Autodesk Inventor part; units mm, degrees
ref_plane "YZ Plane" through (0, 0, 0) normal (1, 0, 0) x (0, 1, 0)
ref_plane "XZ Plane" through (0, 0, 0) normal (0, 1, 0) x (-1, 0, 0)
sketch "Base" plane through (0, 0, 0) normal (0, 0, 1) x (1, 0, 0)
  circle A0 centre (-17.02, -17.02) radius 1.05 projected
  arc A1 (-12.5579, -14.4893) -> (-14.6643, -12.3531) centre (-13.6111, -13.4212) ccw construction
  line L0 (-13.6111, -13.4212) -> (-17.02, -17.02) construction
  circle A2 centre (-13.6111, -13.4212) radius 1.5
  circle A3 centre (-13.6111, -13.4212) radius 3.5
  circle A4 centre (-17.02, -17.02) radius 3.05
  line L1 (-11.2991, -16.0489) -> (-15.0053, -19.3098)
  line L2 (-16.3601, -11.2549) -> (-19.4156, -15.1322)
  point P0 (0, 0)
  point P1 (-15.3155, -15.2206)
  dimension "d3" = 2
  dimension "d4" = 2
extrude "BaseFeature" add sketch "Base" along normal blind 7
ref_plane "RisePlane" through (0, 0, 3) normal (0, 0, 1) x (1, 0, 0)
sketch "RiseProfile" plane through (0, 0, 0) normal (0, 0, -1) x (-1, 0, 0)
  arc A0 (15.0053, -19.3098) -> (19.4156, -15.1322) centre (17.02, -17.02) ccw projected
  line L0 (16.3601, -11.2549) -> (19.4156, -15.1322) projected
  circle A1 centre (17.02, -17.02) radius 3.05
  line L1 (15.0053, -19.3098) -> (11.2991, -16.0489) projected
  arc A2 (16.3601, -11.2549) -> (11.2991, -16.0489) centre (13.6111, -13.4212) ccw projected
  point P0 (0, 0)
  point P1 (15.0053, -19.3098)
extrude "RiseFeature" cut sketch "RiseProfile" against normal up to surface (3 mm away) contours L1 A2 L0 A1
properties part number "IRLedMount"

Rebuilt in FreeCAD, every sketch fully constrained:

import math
import FreeCAD as App
import Part
import Sketcher
from FreeCAD import Vector
Q = App.Units.Quantity

doc = App.newDocument("Part")
body = doc.addObject("PartDesign::Body", "Body")

# Sketch on XY plane
sketch1 = body.newObject("Sketcher::SketchObject", "Sketch")
sketch1.AttachmentSupport = (doc.getObject("XY_Plane"), [""])
sketch1.MapMode = "FlatFace"
sketch1.addGeometry(Part.ArcOfCircle(Part.Circle(Vector(-13.6111, -13.4212, 0), Vector(0, 0, 1), 3.5), math.radians(-48.656844), math.radians(141.760759)), False)
sketch1.addGeometry(Part.LineSegment(Vector(-16.3601, -11.2549, 0), Vector(-19.4156, -15.1322, 0)), False)
sketch1.addGeometry(Part.ArcOfCircle(Part.Circle(Vector(-17.02, -17.02, 0), Vector(0, 0, 1), 3.05), math.radians(141.760899), math.radians(311.343208)), False)
sketch1.addGeometry(Part.LineSegment(Vector(-15.0053, -19.3098, 0), Vector(-11.2991, -16.0489, 0)), False)
sketch1.addGeometry(Part.Circle(Vector(-13.6111, -13.4212, 0), Vector(0, 0, 1), 1.5), False)
sketch1.addGeometry(Part.Circle(Vector(-17.02, -17.02, 0), Vector(0, 0, 1), 1.05), False)
sketch1.addConstraint(Sketcher.Constraint("Tangent", 0, 2, 1, 1))
sketch1.addConstraint(Sketcher.Constraint("Tangent", 1, 2, 2, 1))
sketch1.addConstraint(Sketcher.Constraint("Tangent", 2, 2, 3, 1))
sketch1.addConstraint(Sketcher.Constraint("Tangent", 3, 2, 0, 1))
sketch1.addConstraint(Sketcher.Constraint("Coincident", 4, 3, 0, 3))
sketch1.addConstraint(Sketcher.Constraint("Coincident", 5, 3, 2, 3))
sketch1.addConstraint(Sketcher.Constraint("Diameter", 4, Q("3 mm")))
sketch1.addConstraint(Sketcher.Constraint("Diameter", 5, Q("2.1 mm")))
sketch1.addConstraint(Sketcher.Constraint("Radius", 0, Q("3.5 mm")))
sketch1.addConstraint(Sketcher.Constraint("Radius", 2, Q("3.05 mm")))
sketch1.addConstraint(Sketcher.Constraint("Angle", 1, Q("-128.2398 deg")))
sketch1.addConstraint(Sketcher.Constraint("DistanceX", 2, 3, -1, 1, Q("17.02 mm")))
sketch1.addConstraint(Sketcher.Constraint("DistanceY", 2, 3, -1, 1, Q("17.02 mm")))
sketch1.addConstraint(Sketcher.Constraint("DistanceX", 0, 2, -1, 1, Q("16.36 mm")))
pad1 = body.newObject("PartDesign::Pad", "Pad")
pad1.Profile = sketch1
pad1.Length = 7

# Sketch on XY plane
sketch2 = body.newObject("Sketcher::SketchObject", "Sketch001")
sketch2.AttachmentSupport = (doc.getObject("XY_Plane"), [""])
sketch2.MapMode = "FlatFace"
sketch2.addGeometry(Part.LineSegment(Vector(-11.2991, -16.0489, 0), Vector(-15.0053, -19.3098, 0)), False)
sketch2.addGeometry(Part.ArcOfCircle(Part.Circle(Vector(-17.02, -17.02, 0), Vector(0, 0, 1), 3.05), math.radians(-48.656792), math.radians(141.760899)), False)
sketch2.addGeometry(Part.LineSegment(Vector(-19.4156, -15.1322, 0), Vector(-16.3601, -11.2549, 0)), False)
sketch2.addGeometry(Part.ArcOfCircle(Part.Circle(Vector(-13.6111, -13.4212, 0), Vector(0, 0, 1), 3.49998), math.radians(-48.656844), math.radians(141.760759)), False)
sketch2.addConstraint(Sketcher.Constraint("Tangent", 0, 2, 1, 1))
sketch2.addConstraint(Sketcher.Constraint("Tangent", 1, 2, 2, 1))
sketch2.addConstraint(Sketcher.Constraint("Tangent", 2, 2, 3, 2))
sketch2.addConstraint(Sketcher.Constraint("Tangent", 3, 1, 0, 1))
sketch2.addConstraint(Sketcher.Constraint("Radius", 3, Q("3.5 mm")))
sketch2.addConstraint(Sketcher.Constraint("Radius", 1, Q("3.05 mm")))
sketch2.addConstraint(Sketcher.Constraint("Angle", 2, Q("51.7602 deg")))
sketch2.addConstraint(Sketcher.Constraint("DistanceX", 1, 3, -1, 1, Q("17.02 mm")))
sketch2.addConstraint(Sketcher.Constraint("DistanceY", 1, 3, -1, 1, Q("17.02 mm")))
sketch2.addConstraint(Sketcher.Constraint("DistanceX", 2, 2, -1, 1, Q("16.36 mm")))
pocket1 = body.newObject("PartDesign::Pocket", "Pocket")
pocket1.Profile = sketch2
pocket1.Length = 3
pocket1.Reversed = True

doc.recompute()
